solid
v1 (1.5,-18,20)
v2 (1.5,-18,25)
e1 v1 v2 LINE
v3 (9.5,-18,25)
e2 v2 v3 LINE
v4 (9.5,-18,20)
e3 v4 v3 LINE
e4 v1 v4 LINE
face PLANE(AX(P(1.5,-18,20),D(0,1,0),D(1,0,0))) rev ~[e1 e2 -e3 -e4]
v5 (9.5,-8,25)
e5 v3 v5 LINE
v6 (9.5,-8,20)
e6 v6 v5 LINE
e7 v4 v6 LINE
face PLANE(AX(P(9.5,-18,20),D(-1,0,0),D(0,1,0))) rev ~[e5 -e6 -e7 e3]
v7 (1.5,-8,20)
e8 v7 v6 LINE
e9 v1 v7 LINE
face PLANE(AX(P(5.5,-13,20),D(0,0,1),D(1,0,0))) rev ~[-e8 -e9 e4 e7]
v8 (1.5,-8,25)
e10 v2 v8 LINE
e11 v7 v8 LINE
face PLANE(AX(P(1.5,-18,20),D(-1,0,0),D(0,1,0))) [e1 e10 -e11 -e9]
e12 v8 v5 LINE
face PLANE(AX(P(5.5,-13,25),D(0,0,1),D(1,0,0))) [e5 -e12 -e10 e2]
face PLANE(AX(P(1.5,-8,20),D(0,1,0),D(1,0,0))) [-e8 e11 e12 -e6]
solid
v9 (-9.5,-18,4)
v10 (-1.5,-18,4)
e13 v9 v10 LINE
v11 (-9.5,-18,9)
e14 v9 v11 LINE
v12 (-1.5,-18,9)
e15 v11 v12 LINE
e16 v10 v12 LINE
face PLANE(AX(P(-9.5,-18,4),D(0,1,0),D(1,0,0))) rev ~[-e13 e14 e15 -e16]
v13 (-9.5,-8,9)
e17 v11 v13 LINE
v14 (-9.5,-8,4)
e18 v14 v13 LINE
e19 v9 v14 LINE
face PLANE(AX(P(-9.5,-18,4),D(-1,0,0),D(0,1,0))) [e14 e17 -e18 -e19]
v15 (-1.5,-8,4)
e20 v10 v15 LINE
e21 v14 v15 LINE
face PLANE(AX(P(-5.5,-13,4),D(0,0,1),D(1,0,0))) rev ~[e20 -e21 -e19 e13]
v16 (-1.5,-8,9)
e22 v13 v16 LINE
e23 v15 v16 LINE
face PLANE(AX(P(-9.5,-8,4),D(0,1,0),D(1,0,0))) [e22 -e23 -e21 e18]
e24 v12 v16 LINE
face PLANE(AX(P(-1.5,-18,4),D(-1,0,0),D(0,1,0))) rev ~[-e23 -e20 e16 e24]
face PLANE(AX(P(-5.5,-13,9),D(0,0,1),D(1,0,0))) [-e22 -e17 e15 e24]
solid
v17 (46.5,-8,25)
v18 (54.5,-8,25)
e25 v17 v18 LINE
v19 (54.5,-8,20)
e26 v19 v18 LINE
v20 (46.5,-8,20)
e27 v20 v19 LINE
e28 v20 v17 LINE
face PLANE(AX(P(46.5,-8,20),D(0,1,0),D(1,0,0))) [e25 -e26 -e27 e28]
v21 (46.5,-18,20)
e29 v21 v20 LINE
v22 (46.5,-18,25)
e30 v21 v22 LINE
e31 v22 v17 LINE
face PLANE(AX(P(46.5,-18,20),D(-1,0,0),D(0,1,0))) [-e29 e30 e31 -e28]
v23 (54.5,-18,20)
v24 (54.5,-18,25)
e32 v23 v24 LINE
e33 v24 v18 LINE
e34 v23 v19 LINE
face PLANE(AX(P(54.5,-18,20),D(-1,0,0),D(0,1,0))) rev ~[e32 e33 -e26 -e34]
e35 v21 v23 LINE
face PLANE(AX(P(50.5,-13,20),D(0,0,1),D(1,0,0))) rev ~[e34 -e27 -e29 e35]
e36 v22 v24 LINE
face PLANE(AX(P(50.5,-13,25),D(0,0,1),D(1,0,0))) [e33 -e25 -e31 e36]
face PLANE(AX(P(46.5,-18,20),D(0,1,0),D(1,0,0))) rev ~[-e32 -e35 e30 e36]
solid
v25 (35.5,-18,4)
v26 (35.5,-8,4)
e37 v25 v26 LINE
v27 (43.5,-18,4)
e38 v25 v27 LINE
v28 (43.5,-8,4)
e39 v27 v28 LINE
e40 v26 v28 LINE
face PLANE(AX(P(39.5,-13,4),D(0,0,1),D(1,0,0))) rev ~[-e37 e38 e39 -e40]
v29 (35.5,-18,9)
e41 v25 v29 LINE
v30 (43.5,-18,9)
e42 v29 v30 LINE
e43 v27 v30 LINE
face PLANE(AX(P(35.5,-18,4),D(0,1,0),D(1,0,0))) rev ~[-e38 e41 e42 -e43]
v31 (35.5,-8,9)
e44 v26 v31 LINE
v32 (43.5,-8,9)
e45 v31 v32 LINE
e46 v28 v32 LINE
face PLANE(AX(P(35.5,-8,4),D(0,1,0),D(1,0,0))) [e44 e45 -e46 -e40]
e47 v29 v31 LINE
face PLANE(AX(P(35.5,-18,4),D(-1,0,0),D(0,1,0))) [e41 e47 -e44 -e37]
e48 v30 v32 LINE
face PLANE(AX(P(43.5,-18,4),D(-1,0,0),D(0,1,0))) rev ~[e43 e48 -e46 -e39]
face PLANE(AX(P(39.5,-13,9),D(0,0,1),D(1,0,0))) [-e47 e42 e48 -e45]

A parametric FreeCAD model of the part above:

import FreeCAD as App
import Part
import Sketcher
from FreeCAD import Vector
Q = App.Units.Quantity

doc = App.newDocument("Part")
body = doc.addObject("PartDesign::Body", "Body")

# Sketch on XY plane
sketch1 = doc.addObject("Sketcher::SketchObject", "Sketch")
body.addObject(sketch1)
sketch1.AttachmentSupport = (doc.XY_Plane, [""])
sketch1.MapMode = "FlatFace"
sketch1.AttachmentOffset = App.Placement(Vector(0, 0, 20), App.Rotation())
sketch1.addGeometry(Part.LineSegment(Vector(46, -8, 0), Vector(46, -18, 0)), False)
sketch1.addGeometry(Part.LineSegment(Vector(46, -18, 0), Vector(54, -18, 0)), False)
sketch1.addGeometry(Part.LineSegment(Vector(54, -18, 0), Vector(54, -8, 0)), False)
sketch1.addGeometry(Part.LineSegment(Vector(54, -8, 0), Vector(46, -8, 0)), False)
sketch1.addConstraint(Sketcher.Constraint("Coincident", 0, 2, 1, 1))
sketch1.addConstraint(Sketcher.Constraint("Coincident", 1, 2, 2, 1))
sketch1.addConstraint(Sketcher.Constraint("Coincident", 2, 2, 3, 1))
sketch1.addConstraint(Sketcher.Constraint("Coincident", 3, 2, 0, 1))
sketch1.addConstraint(Sketcher.Constraint("Vertical", 0))
sketch1.addConstraint(Sketcher.Constraint("Horizontal", 1))
sketch1.addConstraint(Sketcher.Constraint("Vertical", 2))
sketch1.addConstraint(Sketcher.Constraint("Horizontal", 3))
sketch1.addConstraint(Sketcher.Constraint("DistanceX", 1, 1, 1, 2, Q("8 mm")))
sketch1.addConstraint(Sketcher.Constraint("DistanceY", 0, 2, 0, 1, Q("10 mm")))
sketch1.addConstraint(Sketcher.Constraint("DistanceY", 0, 2, -1, 1, Q("18 mm")))
sketch1.addConstraint(Sketcher.Constraint("DistanceX", -1, 1, 0, 2, Q("46.5 mm")))
pad1 = doc.addObject("PartDesign::Pad", "Pad")
body.addObject(pad1)
pad1.Profile = sketch1
pad1.Length = 5
body2 = doc.addObject("PartDesign::Body", "Body001")

# Sketch on XY plane
sketch2 = doc.addObject("Sketcher::SketchObject", "Sketch001")
body2.addObject(sketch2)
sketch2.AttachmentSupport = (doc.getObject("XY_Plane001"), [""])
sketch2.MapMode = "FlatFace"
sketch2.AttachmentOffset = App.Placement(Vector(0, 0, 4), App.Rotation())
sketch2.addGeometry(Part.LineSegment(Vector(36, -8, 0), Vector(36, -18, 0)), False)
sketch2.addGeometry(Part.LineSegment(Vector(36, -18, 0), Vector(44, -18, 0)), False)
sketch2.addGeometry(Part.LineSegment(Vector(44, -18, 0), Vector(44, -8, 0)), False)
sketch2.addGeometry(Part.LineSegment(Vector(44, -8, 0), Vector(36, -8, 0)), False)
sketch2.addConstraint(Sketcher.Constraint("Coincident", 0, 2, 1, 1))
sketch2.addConstraint(Sketcher.Constraint("Coincident", 1, 2, 2, 1))
sketch2.addConstraint(Sketcher.Constraint("Coincident", 2, 2, 3, 1))
sketch2.addConstraint(Sketcher.Constraint("Coincident", 3, 2, 0, 1))
sketch2.addConstraint(Sketcher.Constraint("Vertical", 0))
sketch2.addConstraint(Sketcher.Constraint("Horizontal", 1))
sketch2.addConstraint(Sketcher.Constraint("Vertical", 2))
sketch2.addConstraint(Sketcher.Constraint("Horizontal", 3))
sketch2.addConstraint(Sketcher.Constraint("DistanceX", 1, 1, 1, 2, Q("8 mm")))
sketch2.addConstraint(Sketcher.Constraint("DistanceY", 0, 2, 0, 1, Q("10 mm")))
sketch2.addConstraint(Sketcher.Constraint("DistanceY", 0, 2, -1, 1, Q("18 mm")))
sketch2.addConstraint(Sketcher.Constraint("DistanceX", -1, 1, 0, 2, Q("35.5 mm")))
pad2 = doc.addObject("PartDesign::Pad", "Pad001")
body2.addObject(pad2)
pad2.Profile = sketch2
pad2.Length = 5
body3 = doc.addObject("PartDesign::Body", "Body002")

# Sketch on XY plane
sketch3 = doc.addObject("Sketcher::SketchObject", "Sketch002")
body3.addObject(sketch3)
sketch3.AttachmentSupport = (doc.getObject("XY_Plane002"), [""])
sketch3.MapMode = "FlatFace"
sketch3.AttachmentOffset = App.Placement(Vector(0, 0, 20), App.Rotation())
sketch3.addGeometry(Part.LineSegment(Vector(2, -8, 0), Vector(2, -18, 0)), False)
sketch3.addGeometry(Part.LineSegment(Vector(2, -18, 0), Vector(10, -18, 0)), False)
sketch3.addGeometry(Part.LineSegment(Vector(10, -18, 0), Vector(10, -8, 0)), False)
sketch3.addGeometry(Part.LineSegment(Vector(10, -8, 0), Vector(2, -8, 0)), False)
sketch3.addConstraint(Sketcher.Constraint("Coincident", 0, 2, 1, 1))
sketch3.addConstraint(Sketcher.Constraint("Coincident", 1, 2, 2, 1))
sketch3.addConstraint(Sketcher.Constraint("Coincident", 2, 2, 3, 1))
sketch3.addConstraint(Sketcher.Constraint("Coincident", 3, 2, 0, 1))
sketch3.addConstraint(Sketcher.Constraint("Vertical", 0))
sketch3.addConstraint(Sketcher.Constraint("Horizontal", 1))
sketch3.addConstraint(Sketcher.Constraint("Vertical", 2))
sketch3.addConstraint(Sketcher.Constraint("Horizontal", 3))
sketch3.addConstraint(Sketcher.Constraint("DistanceX", 1, 1, 1, 2, Q("8 mm")))
sketch3.addConstraint(Sketcher.Constraint("DistanceY", 0, 2, 0, 1, Q("10 mm")))
sketch3.addConstraint(Sketcher.Constraint("DistanceY", 0, 2, -1, 1, Q("18 mm")))
sketch3.addConstraint(Sketcher.Constraint("DistanceX", -1, 1, 0, 2, Q("1.5 mm")))
pad3 = doc.addObject("PartDesign::Pad", "Pad002")
body3.addObject(pad3)
pad3.Profile = sketch3
pad3.Length = 5
body4 = doc.addObject("PartDesign::Body", "Body003")
body4.AllowCompound = True

# Sketch on XY plane
sketch4 = doc.addObject("Sketcher::SketchObject", "Sketch003")
body4.addObject(sketch4)
sketch4.AttachmentSupport = (doc.getObject("XY_Plane003"), [""])
sketch4.MapMode = "FlatFace"
sketch4.AttachmentOffset = App.Placement(Vector(0, 0, 4), App.Rotation())
sketch4.addGeometry(Part.LineSegment(Vector(-10, -8, 0), Vector(-10, -18, 0)), False)
sketch4.addGeometry(Part.LineSegment(Vector(-10, -18, 0), Vector(-2, -18, 0)), False)
sketch4.addGeometry(Part.LineSegment(Vector(-2, -18, 0), Vector(-2, -8, 0)), False)
sketch4.addGeometry(Part.LineSegment(Vector(-2, -8, 0), Vector(-10, -8, 0)), False)
sketch4.addConstraint(Sketcher.Constraint("Coincident", 0, 2, 1, 1))
sketch4.addConstraint(Sketcher.Constraint("Coincident", 1, 2, 2, 1))
sketch4.addConstraint(Sketcher.Constraint("Coincident", 2, 2, 3, 1))
sketch4.addConstraint(Sketcher.Constraint("Coincident", 3, 2, 0, 1))
sketch4.addConstraint(Sketcher.Constraint("Vertical", 0))
sketch4.addConstraint(Sketcher.Constraint("Horizontal", 1))
sketch4.addConstraint(Sketcher.Constraint("Vertical", 2))
sketch4.addConstraint(Sketcher.Constraint("Horizontal", 3))
sketch4.addConstraint(Sketcher.Constraint("DistanceX", 1, 1, 1, 2, Q("8 mm")))
sketch4.addConstraint(Sketcher.Constraint("DistanceY", 0, 2, 0, 1, Q("10 mm")))
sketch4.addConstraint(Sketcher.Constraint("DistanceY", 0, 2, -1, 1, Q("18 mm")))
sketch4.addConstraint(Sketcher.Constraint("DistanceX", 0, 2, -1, 1, Q("9.5 mm")))
pad4 = doc.addObject("PartDesign::Pad", "Pad003")
body4.addObject(pad4)
pad4.Profile = sketch4
pad4.Length = 5
doc.recompute()

boolean = doc.addObject("PartDesign::Boolean", "Boolean")
body4.addObject(boolean)
boolean.Type = "Fuse"
boolean.addObjects([body])
doc.recompute()

boolean2 = doc.addObject("PartDesign::Boolean", "Boolean001")
body4.addObject(boolean2)
boolean2.Type = "Fuse"
boolean2.addObjects([body2])
doc.recompute()

boolean3 = doc.addObject("PartDesign::Boolean", "Boolean002")
body4.addObject(boolean3)
boolean3.Type = "Fuse"
boolean3.addObjects([body3])

doc.recompute()
